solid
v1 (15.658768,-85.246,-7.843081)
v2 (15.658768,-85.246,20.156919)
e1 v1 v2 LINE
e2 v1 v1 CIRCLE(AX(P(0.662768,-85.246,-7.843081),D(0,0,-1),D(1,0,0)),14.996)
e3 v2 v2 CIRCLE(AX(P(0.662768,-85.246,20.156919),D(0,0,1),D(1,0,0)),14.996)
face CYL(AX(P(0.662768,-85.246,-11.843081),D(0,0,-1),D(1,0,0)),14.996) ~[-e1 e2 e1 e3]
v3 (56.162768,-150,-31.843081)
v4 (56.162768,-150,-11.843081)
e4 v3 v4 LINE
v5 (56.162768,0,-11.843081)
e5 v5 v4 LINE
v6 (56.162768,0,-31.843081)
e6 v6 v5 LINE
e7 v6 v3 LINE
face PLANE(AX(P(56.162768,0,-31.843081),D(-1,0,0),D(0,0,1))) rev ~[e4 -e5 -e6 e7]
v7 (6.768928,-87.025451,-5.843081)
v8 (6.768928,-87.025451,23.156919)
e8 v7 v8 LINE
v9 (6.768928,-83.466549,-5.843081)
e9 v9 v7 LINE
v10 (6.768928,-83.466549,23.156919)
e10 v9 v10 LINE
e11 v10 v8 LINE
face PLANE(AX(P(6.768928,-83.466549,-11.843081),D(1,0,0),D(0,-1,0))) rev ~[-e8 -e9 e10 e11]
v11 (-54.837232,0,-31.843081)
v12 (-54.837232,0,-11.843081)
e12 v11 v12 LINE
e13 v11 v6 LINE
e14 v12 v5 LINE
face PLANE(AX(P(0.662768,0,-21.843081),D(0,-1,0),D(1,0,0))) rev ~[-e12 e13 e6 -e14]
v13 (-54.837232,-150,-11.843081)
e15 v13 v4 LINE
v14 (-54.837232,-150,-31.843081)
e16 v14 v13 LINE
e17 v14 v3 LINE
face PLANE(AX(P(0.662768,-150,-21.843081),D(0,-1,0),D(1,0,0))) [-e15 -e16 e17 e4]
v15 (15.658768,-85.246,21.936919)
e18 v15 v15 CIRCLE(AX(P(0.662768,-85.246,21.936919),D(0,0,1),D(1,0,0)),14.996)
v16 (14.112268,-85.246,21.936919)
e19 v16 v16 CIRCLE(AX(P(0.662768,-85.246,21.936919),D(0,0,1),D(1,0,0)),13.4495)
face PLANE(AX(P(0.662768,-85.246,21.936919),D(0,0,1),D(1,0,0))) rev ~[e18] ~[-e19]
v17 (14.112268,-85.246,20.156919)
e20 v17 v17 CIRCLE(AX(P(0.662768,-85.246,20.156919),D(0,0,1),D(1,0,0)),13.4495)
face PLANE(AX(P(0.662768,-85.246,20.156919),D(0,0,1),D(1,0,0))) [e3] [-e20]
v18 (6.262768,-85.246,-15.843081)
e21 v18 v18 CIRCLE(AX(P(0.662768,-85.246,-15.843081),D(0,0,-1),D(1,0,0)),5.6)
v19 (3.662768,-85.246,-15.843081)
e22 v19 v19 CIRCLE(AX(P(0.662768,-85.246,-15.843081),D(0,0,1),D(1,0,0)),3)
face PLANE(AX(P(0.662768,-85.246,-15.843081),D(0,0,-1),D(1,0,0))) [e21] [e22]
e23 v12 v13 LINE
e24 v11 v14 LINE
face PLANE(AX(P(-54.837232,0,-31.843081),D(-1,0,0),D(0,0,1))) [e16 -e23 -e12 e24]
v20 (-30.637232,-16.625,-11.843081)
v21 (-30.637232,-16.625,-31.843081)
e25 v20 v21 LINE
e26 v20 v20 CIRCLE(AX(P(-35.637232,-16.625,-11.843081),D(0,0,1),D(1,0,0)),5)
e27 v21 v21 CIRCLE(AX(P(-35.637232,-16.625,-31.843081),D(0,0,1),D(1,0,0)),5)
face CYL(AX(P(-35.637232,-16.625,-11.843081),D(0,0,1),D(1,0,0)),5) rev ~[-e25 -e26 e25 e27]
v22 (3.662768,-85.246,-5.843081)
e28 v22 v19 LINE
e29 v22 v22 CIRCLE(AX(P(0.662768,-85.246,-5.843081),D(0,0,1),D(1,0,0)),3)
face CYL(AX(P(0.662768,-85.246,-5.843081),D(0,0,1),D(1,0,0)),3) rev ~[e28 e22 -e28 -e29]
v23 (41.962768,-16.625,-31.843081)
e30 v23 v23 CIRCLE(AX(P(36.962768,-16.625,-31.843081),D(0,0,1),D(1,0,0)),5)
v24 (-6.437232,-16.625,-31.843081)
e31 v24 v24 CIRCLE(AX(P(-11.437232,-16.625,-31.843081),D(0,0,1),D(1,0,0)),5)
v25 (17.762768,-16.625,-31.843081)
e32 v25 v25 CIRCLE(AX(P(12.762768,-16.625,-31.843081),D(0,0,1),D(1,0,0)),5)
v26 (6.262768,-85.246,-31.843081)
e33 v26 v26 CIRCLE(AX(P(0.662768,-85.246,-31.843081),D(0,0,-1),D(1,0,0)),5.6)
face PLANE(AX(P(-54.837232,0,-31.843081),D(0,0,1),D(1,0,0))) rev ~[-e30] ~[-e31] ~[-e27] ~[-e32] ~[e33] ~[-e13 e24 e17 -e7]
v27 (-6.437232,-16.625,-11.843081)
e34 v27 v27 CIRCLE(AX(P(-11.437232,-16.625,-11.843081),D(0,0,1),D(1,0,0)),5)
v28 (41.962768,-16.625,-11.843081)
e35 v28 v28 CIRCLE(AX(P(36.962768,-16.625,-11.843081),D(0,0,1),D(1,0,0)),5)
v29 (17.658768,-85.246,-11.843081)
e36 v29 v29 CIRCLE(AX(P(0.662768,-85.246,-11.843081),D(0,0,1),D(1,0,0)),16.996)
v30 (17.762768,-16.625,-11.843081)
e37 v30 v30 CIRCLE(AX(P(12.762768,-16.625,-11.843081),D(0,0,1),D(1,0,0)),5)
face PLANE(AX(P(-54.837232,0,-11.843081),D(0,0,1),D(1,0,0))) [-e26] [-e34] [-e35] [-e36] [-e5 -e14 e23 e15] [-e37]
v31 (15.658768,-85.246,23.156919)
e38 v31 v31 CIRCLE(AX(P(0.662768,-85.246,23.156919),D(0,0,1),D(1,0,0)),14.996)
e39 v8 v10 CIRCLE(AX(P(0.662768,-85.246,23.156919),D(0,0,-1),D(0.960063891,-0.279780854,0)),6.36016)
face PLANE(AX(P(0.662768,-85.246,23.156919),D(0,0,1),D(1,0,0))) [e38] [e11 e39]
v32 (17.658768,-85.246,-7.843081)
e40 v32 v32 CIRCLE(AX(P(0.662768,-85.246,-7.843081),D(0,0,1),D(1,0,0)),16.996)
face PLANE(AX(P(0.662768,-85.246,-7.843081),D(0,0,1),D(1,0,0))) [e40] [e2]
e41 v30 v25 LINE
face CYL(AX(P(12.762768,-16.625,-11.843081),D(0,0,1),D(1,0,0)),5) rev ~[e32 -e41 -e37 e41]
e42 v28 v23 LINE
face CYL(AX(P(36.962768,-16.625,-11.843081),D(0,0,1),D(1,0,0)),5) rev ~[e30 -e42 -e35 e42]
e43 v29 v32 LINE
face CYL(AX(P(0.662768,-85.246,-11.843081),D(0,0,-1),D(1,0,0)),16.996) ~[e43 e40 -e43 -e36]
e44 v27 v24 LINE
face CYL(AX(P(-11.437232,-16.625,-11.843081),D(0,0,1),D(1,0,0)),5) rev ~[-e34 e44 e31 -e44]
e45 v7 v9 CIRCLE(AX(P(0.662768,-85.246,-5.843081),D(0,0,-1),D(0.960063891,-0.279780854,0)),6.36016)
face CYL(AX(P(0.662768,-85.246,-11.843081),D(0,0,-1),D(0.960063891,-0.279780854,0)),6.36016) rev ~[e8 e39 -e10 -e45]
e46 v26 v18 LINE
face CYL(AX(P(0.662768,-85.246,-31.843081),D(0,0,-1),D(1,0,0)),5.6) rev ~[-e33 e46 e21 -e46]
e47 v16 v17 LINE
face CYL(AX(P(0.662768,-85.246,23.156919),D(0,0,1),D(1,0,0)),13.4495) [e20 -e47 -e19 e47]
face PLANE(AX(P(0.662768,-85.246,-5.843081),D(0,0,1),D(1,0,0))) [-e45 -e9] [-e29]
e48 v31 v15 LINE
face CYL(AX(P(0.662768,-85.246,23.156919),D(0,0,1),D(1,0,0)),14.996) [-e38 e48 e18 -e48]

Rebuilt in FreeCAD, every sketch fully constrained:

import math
import FreeCAD as App
import Part
import Sketcher

V = App.Vector
Q = App.Units.Quantity


def add_polygon(sketch, points):
    """Adds a closed chain of lines whose ends are joined by coincident constraints."""
    first, n = sketch.GeometryCount, len(points)
    for a, b in zip(points, points[1:] + points[:1]):
        sketch.addGeometry(Part.LineSegment(App.Vector(*a, 0), App.Vector(*b, 0)), False)
    for i in range(n):
        sketch.addConstraint(Sketcher.Constraint("Coincident", first + i, 2, first + (i + 1) % n, 1))

doc = App.newDocument("Part")
body = doc.addObject("PartDesign::Body", "Body")

# Sketch on XZ plane
sketch1 = doc.addObject("Sketcher::SketchObject", "Sketch")
body.addObject(sketch1)
sketch1.AttachmentSupport = (doc.XZ_Plane, [""])
sketch1.MapMode = "FlatFace"
add_polygon(sketch1, [(-55, -12), (-55, -32), (56, -32), (56, -12)])  # lines 0-3
sketch1.addConstraint([
    Sketcher.Constraint("Vertical", 0),
    Sketcher.Constraint("Horizontal", 1),
    Sketcher.Constraint("Vertical", 2),
    Sketcher.Constraint("Horizontal", 3),
    Sketcher.Constraint("DistanceX", 1, 1, 1, 2, Q("111 mm")),
    Sketcher.Constraint("DistanceY", 0, 2, 0, 1, Q("20 mm")),
    Sketcher.Constraint("DistanceY", 0, 2, -1, 1, Q("31.843081 mm")),
    Sketcher.Constraint("DistanceX", 0, 2, -1, 1, Q("54.837232 mm")),
])
pad1 = doc.addObject("PartDesign::Pad", "Pad")
body.addObject(pad1)
pad1.Profile = sketch1
pad1.Length = 150

# Sketch on XY plane
sketch2 = doc.addObject("Sketcher::SketchObject", "Sketch001")
body.addObject(sketch2)
sketch2.AttachmentSupport = (doc.XY_Plane, [""])
sketch2.MapMode = "FlatFace"
sketch2.AttachmentOffset = App.Placement(V(0, 0, -11.843081), App.Rotation())
sketch2.addGeometry([
    Part.Circle(V(0.7, -85.2, 0), V(0, 0, 1), 15),
    Part.LineSegment(V(6.8, -83.5, 0), V(6.8, -87, 0)),
    Part.ArcOfCircle(Part.Circle(V(0.7, -85.2, 0), V(0, 0, 1), 6.4), math.radians(16), math.radians(344)),
], False)
sketch2.addConstraint([
    Sketcher.Constraint("Coincident", 1, 1, 2, 1),
    Sketcher.Constraint("Coincident", 2, 2, 1, 2),
    Sketcher.Constraint("Vertical", 1),
    Sketcher.Constraint("Coincident", 2, 3, 0, 3),
    Sketcher.Constraint("Diameter", 0, Q("29.992 mm")),
    Sketcher.Constraint("Radius", 2, Q("6.36016 mm")),
    Sketcher.Constraint("DistanceY", 0, 3, -1, 1, Q("85.246 mm")),
    Sketcher.Constraint("DistanceY", 2, 2, 1, 1, Q("3.558902 mm")),
    Sketcher.Constraint("DistanceX", -1, 1, 0, 3, Q("0.662768 mm")),
])
pad2 = doc.addObject("PartDesign::Pad", "Pad001")
body.addObject(pad2)
pad2.Profile = sketch2
pad2.Length = 35

# Sketch on XY plane
sketch3 = doc.addObject("Sketcher::SketchObject", "Sketch002")
body.addObject(sketch3)
sketch3.AttachmentSupport = (doc.XY_Plane, [""])
sketch3.MapMode = "FlatFace"
sketch3.AttachmentOffset = App.Placement(V(0, 0, 23.156919), App.Rotation())
sketch3.addGeometry([
    Part.Circle(V(1, -85, 0), V(0, 0, 1), 15),
    Part.Circle(V(1, -85, 0), V(0, 0, 1), 13),
], False)
sketch3.addConstraint([
    Sketcher.Constraint("Coincident", 1, 3, 0, 3),
    Sketcher.Constraint("Diameter", 0, Q("29.992 mm")),
    Sketcher.Constraint("Diameter", 1, Q("26.899 mm")),
    Sketcher.Constraint("DistanceY", 0, 3, -1, 1, Q("85.246 mm")),
    Sketcher.Constraint("DistanceX", -1, 1, 0, 3, Q("0.662768 mm")),
])
pocket1 = doc.addObject("PartDesign::Pocket", "Pocket")
body.addObject(pocket1)
pocket1.Profile = sketch3
pocket1.Length = 3

# Sketch on XY plane
sketch4 = doc.addObject("Sketcher::SketchObject", "Sketch003")
body.addObject(sketch4)
sketch4.AttachmentSupport = (doc.XY_Plane, [""])
sketch4.MapMode = "FlatFace"
sketch4.AttachmentOffset = App.Placement(V(0, 0, 23.156919), App.Rotation())
sketch4.addGeometry([
    Part.Circle(V(1, -85, 0), V(0, 0, 1), 15),
    Part.Circle(V(1, -85, 0), V(0, 0, 1), 13),
], False)
sketch4.addConstraint([
    Sketcher.Constraint("Coincident", 1, 3, 0, 3),
    Sketcher.Constraint("Diameter", 0, Q("29.992 mm")),
    Sketcher.Constraint("Diameter", 1, Q("26.899 mm")),
    Sketcher.Constraint("DistanceY", 0, 3, -1, 1, Q("85.246 mm")),
    Sketcher.Constraint("DistanceX", -1, 1, 0, 3, Q("0.662768 mm")),
])
pad3 = doc.addObject("PartDesign::Pad", "Pad002")
body.addObject(pad3)
pad3.Profile = sketch4
pad3.Length = 1.22
pad3.Reversed = True

# Sketch on XY plane
sketch5 = doc.addObject("Sketcher::SketchObject", "Sketch004")
body.addObject(sketch5)
sketch5.AttachmentSupport = (doc.XY_Plane, [""])
sketch5.MapMode = "FlatFace"
sketch5.AttachmentOffset = App.Placement(V(0, 0, -11.843081), App.Rotation())
sketch5.addGeometry(Part.Circle(V(1, -85, 0), V(0, 0, 1), 17), False)
sketch5.addConstraint([
    Sketcher.Constraint("Diameter", 0, Q("33.992 mm")),
    Sketcher.Constraint("DistanceY", 0, 3, -1, 1, Q("85.246 mm")),
    Sketcher.Constraint("DistanceX", -1, 1, 0, 3, Q("0.662768 mm")),
])
pad4 = doc.addObject("PartDesign::Pad", "Pad003")
body.addObject(pad4)
pad4.Profile = sketch5
pad4.Length = 4

# Sketch on XY plane
sketch6 = doc.addObject("Sketcher::SketchObject", "Sketch005")
body.addObject(sketch6)
sketch6.AttachmentSupport = (doc.XY_Plane, [""])
sketch6.MapMode = "FlatFace"
sketch6.AttachmentOffset = App.Placement(V(0, 0, -7.843081), App.Rotation())
sketch6.addGeometry(Part.Circle(V(1, -85, 0), V(0, 0, 1), 9), False)
sketch6.addConstraint([
    Sketcher.Constraint("Diameter", 0, Q("17.081322 mm")),
    Sketcher.Constraint("DistanceY", 0, 3, -1, 1, Q("85.246 mm")),
    Sketcher.Constraint("DistanceX", -1, 1, 0, 3, Q("0.662768 mm")),
])
pad5 = doc.addObject("PartDesign::Pad", "Pad004")
body.addObject(pad5)
pad5.Profile = sketch6
pad5.Length = 2

# Sketch on XY plane
sketch7 = doc.addObject("Sketcher::SketchObject", "Sketch006")
body.addObject(sketch7)
sketch7.AttachmentSupport = (doc.XY_Plane, [""])
sketch7.MapMode = "FlatFace"
sketch7.AttachmentOffset = App.Placement(V(0, 0, -11.843081), App.Rotation())
sketch7.addGeometry([
    Part.Circle(V(37, -17, 0), V(0, 0, 1), 5),
    Part.Circle(V(13, -17, 0), V(0, 0, 1), 5),
    Part.Circle(V(-11, -17, 0), V(0, 0, 1), 5),
    Part.Circle(V(-36, -17, 0), V(0, 0, 1), 5),
], False)
sketch7.addConstraint([
    Sketcher.Constraint("Equal", 0, 1),
    Sketcher.Constraint("Equal", 1, 2),
    Sketcher.Constraint("Equal", 2, 3),
    Sketcher.Constraint("Horizontal", 0, 3, 1, 3),
    Sketcher.Constraint("Horizontal", 1, 3, 2, 3),
    Sketcher.Constraint("Horizontal", 2, 3, 3, 3),
    Sketcher.Constraint("Diameter", 0, Q("10 mm")),
    Sketcher.Constraint("DistanceX", 1, 3, 0, 3, Q("24.2 mm")),
    Sketcher.Constraint("DistanceX", 2, 3, 1, 3, Q("24.2 mm")),
    Sketcher.Constraint("DistanceX", 3, 3, 2, 3, Q("24.2 mm")),
    Sketcher.Constraint("DistanceY", 0, 3, -1, 1, Q("16.625 mm")),
    Sketcher.Constraint("DistanceX", 3, 3, -1, 1, Q("35.637232 mm")),
])
pocket2 = doc.addObject("PartDesign::Pocket", "Pocket001")
body.addObject(pocket2)
pocket2.Profile = sketch7
pocket2.Type = "ThroughAll"

# Sketch on XY plane
sketch8 = doc.addObject("Sketcher::SketchObject", "Sketch007")
body.addObject(sketch8)
sketch8.AttachmentSupport = (doc.XY_Plane, [""])
sketch8.MapMode = "FlatFace"
sketch8.AttachmentOffset = App.Placement(V(0, 0, -5.843081), App.Rotation())
sketch8.addGeometry(Part.Circle(V(0.7, -85.2, 0), V(0, 0, 1), 3), False)
sketch8.addConstraint([
    Sketcher.Constraint("Diameter", 0, Q("6 mm")),
    Sketcher.Constraint("DistanceY", 0, 3, -1, 1, Q("85.246 mm")),
    Sketcher.Constraint("DistanceX", -1, 1, 0, 3, Q("0.662768 mm")),
])
pocket3 = doc.addObject("PartDesign::Pocket", "Pocket002")
body.addObject(pocket3)
pocket3.Profile = sketch8
pocket3.Type = "ThroughAll"

# Sketch on XY plane
sketch9 = doc.addObject("Sketcher::SketchObject", "Sketch008")
body.addObject(sketch9)
sketch9.AttachmentSupport = (doc.XY_Plane, [""])
sketch9.MapMode = "FlatFace"
sketch9.AttachmentOffset = App.Placement(V(0, 0, -31.843081), App.Rotation())
sketch9.addGeometry(Part.Circle(V(1, -85, 0), V(0, 0, 1), 6), False)
sketch9.addConstraint([
    Sketcher.Constraint("Diameter", 0, Q("11.2 mm")),
    Sketcher.Constraint("DistanceY", 0, 3, -1, 1, Q("85.246 mm")),
    Sketcher.Constraint("DistanceX", -1, 1, 0, 3, Q("0.662768 mm")),
])
pocket4 = doc.addObject("PartDesign::Pocket", "Pocket003")
body.addObject(pocket4)
pocket4.Profile = sketch9
pocket4.Length = 16
pocket4.Reversed = True

doc.recompute()
